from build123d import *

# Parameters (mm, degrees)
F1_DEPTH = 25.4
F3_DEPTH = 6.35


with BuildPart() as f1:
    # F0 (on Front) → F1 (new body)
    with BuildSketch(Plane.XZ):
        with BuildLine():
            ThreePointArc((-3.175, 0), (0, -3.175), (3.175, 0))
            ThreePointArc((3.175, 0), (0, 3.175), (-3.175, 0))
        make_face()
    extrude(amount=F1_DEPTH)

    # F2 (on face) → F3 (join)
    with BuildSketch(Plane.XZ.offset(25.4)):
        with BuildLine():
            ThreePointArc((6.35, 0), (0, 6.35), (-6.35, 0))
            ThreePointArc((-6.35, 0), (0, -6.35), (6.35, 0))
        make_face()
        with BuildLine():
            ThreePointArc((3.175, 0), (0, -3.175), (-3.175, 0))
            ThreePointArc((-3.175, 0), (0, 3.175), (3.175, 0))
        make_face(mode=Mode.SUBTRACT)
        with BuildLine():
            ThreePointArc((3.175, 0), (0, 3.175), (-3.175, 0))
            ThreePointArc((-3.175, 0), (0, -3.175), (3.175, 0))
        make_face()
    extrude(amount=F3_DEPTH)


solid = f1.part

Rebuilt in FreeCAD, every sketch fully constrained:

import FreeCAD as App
import Part
import Sketcher
Q = App.Units.Quantity

doc = App.newDocument("Part")
body = doc.addObject("PartDesign::Body", "Body")

# Sketch on XZ plane
sketch1 = body.newObject("Sketcher::SketchObject", "Sketch")
sketch1.AttachmentSupport = (doc.getObject("XZ_Plane"), [""])
sketch1.MapMode = "FlatFace"
sketch1.addGeometry(Part.Circle(App.Vector(0, 0, 0), App.Vector(0, 0, 1), 3.175), False)
sketch1.addConstraint([
    Sketcher.Constraint("Coincident", 0, 3, -1, 1),
    Sketcher.Constraint("Diameter", 0, Q("0.25 in")),
])
pad1 = body.newObject("PartDesign::Pad", "Pad")
pad1.Profile = sketch1
pad1.Length = Q("1 in")

# Sketch on XZ plane
sketch2 = body.newObject("Sketcher::SketchObject", "Sketch001")
sketch2.AttachmentSupport = (doc.getObject("XZ_Plane"), [""])
sketch2.MapMode = "FlatFace"
sketch2.AttachmentOffset = App.Placement(App.Vector(0, 0, 1 * 25.4), App.Rotation())
sketch2.addGeometry(Part.Circle(App.Vector(0, 0, 0), App.Vector(0, 0, 1), 6.35), False)
sketch2.addConstraint([
    Sketcher.Constraint("Coincident", 0, 3, -1, 1),
    Sketcher.Constraint("Diameter", 0, Q("0.5 in")),
])
pad2 = body.newObject("PartDesign::Pad", "Pad001")
pad2.Profile = sketch2
pad2.Length = Q("0.25 in")

doc.recompute()
